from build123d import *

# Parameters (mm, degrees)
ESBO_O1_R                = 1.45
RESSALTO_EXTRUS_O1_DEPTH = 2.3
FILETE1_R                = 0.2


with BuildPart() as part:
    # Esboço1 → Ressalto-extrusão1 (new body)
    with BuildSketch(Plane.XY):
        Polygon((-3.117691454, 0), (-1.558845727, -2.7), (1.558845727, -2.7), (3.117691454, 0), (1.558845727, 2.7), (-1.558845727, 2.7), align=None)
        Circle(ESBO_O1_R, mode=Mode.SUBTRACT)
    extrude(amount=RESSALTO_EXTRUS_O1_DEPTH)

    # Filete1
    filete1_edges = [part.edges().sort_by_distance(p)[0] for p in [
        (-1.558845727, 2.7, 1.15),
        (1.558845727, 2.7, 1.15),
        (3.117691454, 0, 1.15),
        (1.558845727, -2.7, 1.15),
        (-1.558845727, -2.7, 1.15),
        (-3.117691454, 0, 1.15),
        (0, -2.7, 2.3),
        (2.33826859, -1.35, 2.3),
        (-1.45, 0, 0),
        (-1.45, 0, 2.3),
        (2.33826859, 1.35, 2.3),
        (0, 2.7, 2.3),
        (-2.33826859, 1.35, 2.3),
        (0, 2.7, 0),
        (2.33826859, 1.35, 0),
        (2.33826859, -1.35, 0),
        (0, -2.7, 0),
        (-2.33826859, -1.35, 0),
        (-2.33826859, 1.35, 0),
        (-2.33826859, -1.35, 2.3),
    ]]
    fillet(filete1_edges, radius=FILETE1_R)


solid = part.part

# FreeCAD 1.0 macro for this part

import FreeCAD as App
import Part
import Sketcher
from FreeCAD import Vector
Q = App.Units.Quantity

doc = App.newDocument("Part")
body = doc.addObject("PartDesign::Body", "Body")

# Sketch on XY plane
sketch1 = body.newObject("Sketcher::SketchObject", "Sketch")
sketch1.AttachmentSupport = (doc.getObject("XY_Plane"), [""])
sketch1.MapMode = "FlatFace"
sketch1.addGeometry([
    Part.LineSegment(Vector(-3.117691, 0, 0), Vector(-1.558846, -2.7, 0)),  # 0
    Part.LineSegment(Vector(-1.558846, -2.7, 0), Vector(1.558846, -2.7, 0)),  # 1
    Part.LineSegment(Vector(1.558846, -2.7, 0), Vector(3.117691, 0, 0)),  # 2
    Part.LineSegment(Vector(3.117691, 0, 0), Vector(1.558846, 2.7, 0)),  # 3
    Part.LineSegment(Vector(1.558846, 2.7, 0), Vector(-1.558846, 2.7, 0)),  # 4
    Part.LineSegment(Vector(-1.558846, 2.7, 0), Vector(-3.117691, 0, 0)),  # 5
    Part.Circle(Vector(0, 0, 0), Vector(0, 0, 1), 1.45),  # 6
], False)
sketch1.addConstraint([
    Sketcher.Constraint("Coincident", 0, 2, 1, 1),
    Sketcher.Constraint("Coincident", 1, 2, 2, 1),
    Sketcher.Constraint("Coincident", 2, 2, 3, 1),
    Sketcher.Constraint("Coincident", 3, 2, 4, 1),
    Sketcher.Constraint("Coincident", 4, 2, 5, 1),
    Sketcher.Constraint("Coincident", 5, 2, 0, 1),
    Sketcher.Constraint("Horizontal", 1),
    Sketcher.Constraint("Horizontal", 4),
    Sketcher.Constraint("Coincident", 6, 3, -1, 1),
    Sketcher.Constraint("Symmetric", 0, 2, 3, 2, -1, 1),
    Sketcher.Constraint("Symmetric", 2, 2, 5, 2, -1, 1),
    Sketcher.Constraint("PointOnObject", 2, 2, -1),
    Sketcher.Constraint("Parallel", 2, 5),
    Sketcher.Constraint("Vertical", 1, 2, 3, 2),
    Sketcher.Constraint("Diameter", 6, 2.9),
    Sketcher.Constraint("Angle", 0, Q("-60 deg")),
    Sketcher.Constraint("DistanceY", 0, 2, -1, 1, 2.7),
    Sketcher.Constraint("DistanceX", 1, 1, 1, 2, 3.117691),
])
pad1 = body.newObject("PartDesign::Pad", "Pad")
pad1.Profile = sketch1
pad1.Length = 2.3
doc.recompute()

fillet = body.newObject("PartDesign::Fillet", "Fillet")
fillet.Base = (pad1, ["Edge1"])
fillet.UseAllEdges = True
fillet.Radius = 0.2

doc.recompute()
